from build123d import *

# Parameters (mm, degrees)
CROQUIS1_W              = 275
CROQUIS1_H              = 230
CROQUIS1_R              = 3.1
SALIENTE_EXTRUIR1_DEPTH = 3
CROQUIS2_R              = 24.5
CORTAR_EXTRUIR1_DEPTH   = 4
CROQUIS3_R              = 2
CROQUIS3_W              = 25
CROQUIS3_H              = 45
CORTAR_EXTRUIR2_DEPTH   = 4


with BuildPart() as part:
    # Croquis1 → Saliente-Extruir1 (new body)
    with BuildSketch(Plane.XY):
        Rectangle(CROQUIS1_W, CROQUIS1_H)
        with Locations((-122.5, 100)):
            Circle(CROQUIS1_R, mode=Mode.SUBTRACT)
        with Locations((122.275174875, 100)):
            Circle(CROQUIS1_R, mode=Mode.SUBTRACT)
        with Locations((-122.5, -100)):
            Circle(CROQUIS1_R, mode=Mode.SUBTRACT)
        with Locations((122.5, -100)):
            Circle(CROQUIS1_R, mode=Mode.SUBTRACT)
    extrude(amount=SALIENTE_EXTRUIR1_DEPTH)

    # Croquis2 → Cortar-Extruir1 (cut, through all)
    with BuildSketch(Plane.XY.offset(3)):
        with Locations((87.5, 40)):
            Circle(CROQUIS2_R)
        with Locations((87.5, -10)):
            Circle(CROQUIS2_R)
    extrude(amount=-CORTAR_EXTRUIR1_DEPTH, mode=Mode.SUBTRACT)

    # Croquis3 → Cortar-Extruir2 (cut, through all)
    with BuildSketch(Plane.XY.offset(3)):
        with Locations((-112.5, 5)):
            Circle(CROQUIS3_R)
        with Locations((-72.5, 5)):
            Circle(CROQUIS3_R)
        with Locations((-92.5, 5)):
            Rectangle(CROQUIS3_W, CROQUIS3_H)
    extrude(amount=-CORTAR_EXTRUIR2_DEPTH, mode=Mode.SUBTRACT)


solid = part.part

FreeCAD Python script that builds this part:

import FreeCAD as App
import Part
import Sketcher

doc = App.newDocument("Part")
body = doc.addObject("PartDesign::Body", "Body")

sketch1 = doc.addObject("Sketcher::SketchObject", "Sketch")
body.addObject(sketch1)
sketch1.AttachmentSupport = (doc.XY_Plane, [""])
sketch1.MapMode = "FlatFace"
sketch1.addGeometry([
    Part.LineSegment(App.Vector(-137.5, 115, 0), App.Vector(-137.5, -115, 0)),
    Part.LineSegment(App.Vector(-137.5, -115, 0), App.Vector(137.5, -115, 0)),
    Part.LineSegment(App.Vector(137.5, -115, 0), App.Vector(137.5, 115, 0)),
    Part.LineSegment(App.Vector(137.5, 115, 0), App.Vector(-137.5, 115, 0)),
    Part.Circle(App.Vector(-122.5, -100, 0), App.Vector(0, 0, 1), 3.1),
    Part.Circle(App.Vector(122.5, -100, 0), App.Vector(0, 0, 1), 3.1),
    Part.Circle(App.Vector(-122.5, 100, 0), App.Vector(0, 0, 1), 3.1),
    Part.Circle(App.Vector(122.275175, 100, 0), App.Vector(0, 0, 1), 3.1),
], False)
sketch1.addConstraint([
    Sketcher.Constraint("Coincident", 0, 2, 1, 1),
    Sketcher.Constraint("Coincident", 1, 2, 2, 1),
    Sketcher.Constraint("Coincident", 2, 2, 3, 1),
    Sketcher.Constraint("Coincident", 3, 2, 0, 1),
    Sketcher.Constraint("Vertical", 0),
    Sketcher.Constraint("Horizontal", 1),
    Sketcher.Constraint("Vertical", 2),
    Sketcher.Constraint("Horizontal", 3),
    Sketcher.Constraint("Equal", 4, 5),
    Sketcher.Constraint("Equal", 5, 6),
    Sketcher.Constraint("Equal", 6, 7),
    Sketcher.Constraint("Symmetric", 5, 3, 6, 3, -1, 1),
    Sketcher.Constraint("Symmetric", 0, 2, 2, 2, -1, 1),
    Sketcher.Constraint("Symmetric", 4, 3, 5, 3, -2),
    Sketcher.Constraint("Horizontal", 6, 3, 7, 3),
    Sketcher.Constraint("Diameter", 4, 6.2),
    Sketcher.Constraint("DistanceX", 1, 1, 1, 2, 275.0),
    Sketcher.Constraint("DistanceY", 0, 2, 0, 1, 230.0),
    Sketcher.Constraint("DistanceY", 4, 3, -1, 1, 100.0),
    Sketcher.Constraint("DistanceX", 4, 3, 5, 3, 245.0),
    Sketcher.Constraint("DistanceX", -1, 1, 7, 3, 122.275175),
])
pad1 = doc.addObject("PartDesign::Pad", "Pad")
body.addObject(pad1)
pad1.Profile = sketch1
pad1.Length = 3

sketch2 = doc.addObject("Sketcher::SketchObject", "Sketch001")
body.addObject(sketch2)
sketch2.AttachmentSupport = (doc.XY_Plane, [""])
sketch2.MapMode = "FlatFace"
sketch2.AttachmentOffset = App.Placement(App.Vector(0, 0, 3), App.Rotation())
sketch2.addGeometry([
    Part.Circle(App.Vector(87.5, 40, 0), App.Vector(0, 0, 1), 24.5),
    Part.Circle(App.Vector(87.5, -10, 0), App.Vector(0, 0, 1), 24.5),
], False)
sketch2.addConstraint([
    Sketcher.Constraint("Equal", 0, 1),
    Sketcher.Constraint("Vertical", 0, 3, 1, 3),
    Sketcher.Constraint("Diameter", 0, 49.0),
    Sketcher.Constraint("DistanceY", -1, 1, 0, 3, 40.0),
    Sketcher.Constraint("DistanceY", 1, 3, -1, 1, 10.0),
    Sketcher.Constraint("DistanceX", -1, 1, 0, 3, 87.5),
])
pocket1 = doc.addObject("PartDesign::Pocket", "Pocket")
body.addObject(pocket1)
pocket1.Profile = sketch2
pocket1.Type = "ThroughAll"

sketch3 = doc.addObject("Sketcher::SketchObject", "Sketch002")
body.addObject(sketch3)
sketch3.AttachmentSupport = (doc.XY_Plane, [""])
sketch3.MapMode = "FlatFace"
sketch3.AttachmentOffset = App.Placement(App.Vector(0, 0, 3), App.Rotation())
sketch3.addGeometry([
    Part.Circle(App.Vector(-112.5, 5, 0), App.Vector(0, 0, 1), 2),
    Part.Circle(App.Vector(-72.5, 5, 0), App.Vector(0, 0, 1), 2),
    Part.LineSegment(App.Vector(-105, 27.5, 0), App.Vector(-105, -17.5, 0)),
    Part.LineSegment(App.Vector(-105, -17.5, 0), App.Vector(-80, -17.5, 0)),
    Part.LineSegment(App.Vector(-80, -17.5, 0), App.Vector(-80, 27.5, 0)),
    Part.LineSegment(App.Vector(-80, 27.5, 0), App.Vector(-105, 27.5, 0)),
], False)
sketch3.addConstraint([
    Sketcher.Constraint("Coincident", 2, 2, 3, 1),
    Sketcher.Constraint("Coincident", 3, 2, 4, 1),
    Sketcher.Constraint("Coincident", 4, 2, 5, 1),
    Sketcher.Constraint("Coincident", 5, 2, 2, 1),
    Sketcher.Constraint("Vertical", 2),
    Sketcher.Constraint("Horizontal", 3),
    Sketcher.Constraint("Vertical", 4),
    Sketcher.Constraint("Horizontal", 5),
    Sketcher.Constraint("Equal", 0, 1),
    Sketcher.Constraint("Horizontal", 0, 3, 1, 3),
    Sketcher.Constraint("Diameter", 0, 4.0),
    Sketcher.Constraint("DistanceX", 3, 1, 3, 2, 25.0),
    Sketcher.Constraint("DistanceY", 2, 2, 2, 1, 45.0),
    Sketcher.Constraint("DistanceY", -1, 1, 0, 3, 5.0),
    Sketcher.Constraint("DistanceX", 2, 2, -1, 1, 105.0),
    Sketcher.Constraint("DistanceX", 0, 3, 1, 3, 40.0),
    Sketcher.Constraint("DistanceX", 0, 3, -1, 1, 112.5),
    Sketcher.Constraint("DistanceY", 2, 2, -1, 1, 17.5),
])
pocket2 = doc.addObject("PartDesign::Pocket", "Pocket001")
body.addObject(pocket2)
pocket2.Profile = sketch3
pocket2.Type = "ThroughAll"

doc.recompute()
